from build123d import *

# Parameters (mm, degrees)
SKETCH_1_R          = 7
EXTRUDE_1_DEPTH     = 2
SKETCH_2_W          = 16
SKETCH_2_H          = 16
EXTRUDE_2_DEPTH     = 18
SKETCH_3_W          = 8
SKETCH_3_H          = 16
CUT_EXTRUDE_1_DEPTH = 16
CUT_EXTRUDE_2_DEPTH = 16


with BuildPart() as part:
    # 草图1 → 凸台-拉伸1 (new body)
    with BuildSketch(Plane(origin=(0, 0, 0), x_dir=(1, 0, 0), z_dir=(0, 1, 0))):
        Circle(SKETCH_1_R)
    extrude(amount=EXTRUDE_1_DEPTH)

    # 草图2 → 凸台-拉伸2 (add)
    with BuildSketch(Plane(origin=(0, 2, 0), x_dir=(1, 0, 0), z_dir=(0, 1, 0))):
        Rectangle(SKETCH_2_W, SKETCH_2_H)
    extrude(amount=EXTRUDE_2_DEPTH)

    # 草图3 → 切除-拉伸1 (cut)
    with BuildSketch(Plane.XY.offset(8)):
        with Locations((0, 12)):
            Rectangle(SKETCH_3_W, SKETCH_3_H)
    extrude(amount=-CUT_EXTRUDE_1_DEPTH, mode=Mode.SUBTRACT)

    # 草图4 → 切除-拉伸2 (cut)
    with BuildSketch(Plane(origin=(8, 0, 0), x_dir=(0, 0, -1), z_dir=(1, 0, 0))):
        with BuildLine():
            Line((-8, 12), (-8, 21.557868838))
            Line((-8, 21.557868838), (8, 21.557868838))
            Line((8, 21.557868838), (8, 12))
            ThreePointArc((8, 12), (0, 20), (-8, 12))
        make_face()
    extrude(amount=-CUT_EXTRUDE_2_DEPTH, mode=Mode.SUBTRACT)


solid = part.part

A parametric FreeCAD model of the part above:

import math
import FreeCAD as App
import Part
import Sketcher
from FreeCAD import Vector
Q = App.Units.Quantity

doc = App.newDocument("Part")
body = doc.addObject("PartDesign::Body", "Body")

sketch1 = body.newObject("Sketcher::SketchObject", "Sketch")
sketch1.AttachmentSupport = (doc.getObject("XZ_Plane"), [""])
sketch1.MapMode = "FlatFace"
sketch1.addGeometry(Part.Circle(Vector(0, 0, 0), Vector(0, 0, 1), 7), False)
sketch1.addConstraint([
    Sketcher.Constraint("Coincident", 0, 3, -1, 1),
    Sketcher.Constraint("Diameter", 0, Q("14 mm")),
])
pad1 = body.newObject("PartDesign::Pad", "Pad")
pad1.Profile = sketch1
pad1.Length = 2
pad1.Reversed = True

sketch2 = body.newObject("Sketcher::SketchObject", "Sketch001")
sketch2.AttachmentSupport = (doc.getObject("XZ_Plane"), [""])
sketch2.MapMode = "FlatFace"
sketch2.AttachmentOffset = App.Placement(Vector(0, 0, -2), App.Rotation())
sketch2.addGeometry([
    Part.LineSegment(Vector(-8, -8, 0), Vector(-8, 8, 0)),
    Part.LineSegment(Vector(-8, 8, 0), Vector(8, 8, 0)),
    Part.LineSegment(Vector(8, 8, 0), Vector(8, -8, 0)),
    Part.LineSegment(Vector(8, -8, 0), Vector(-8, -8, 0)),
], False)
sketch2.addConstraint([
    Sketcher.Constraint("Coincident", 0, 2, 1, 1),
    Sketcher.Constraint("Coincident", 1, 2, 2, 1),
    Sketcher.Constraint("Coincident", 2, 2, 3, 1),
    Sketcher.Constraint("Coincident", 3, 2, 0, 1),
    Sketcher.Constraint("Vertical", 0),
    Sketcher.Constraint("Horizontal", 1),
    Sketcher.Constraint("Vertical", 2),
    Sketcher.Constraint("Horizontal", 3),
    Sketcher.Constraint("Symmetric", 0, 2, 2, 2, -1, 1),
    Sketcher.Constraint("Equal", 3, 0),
    Sketcher.Constraint("DistanceX", 1, 1, 1, 2, Q("16 mm")),
])
pad2 = body.newObject("PartDesign::Pad", "Pad001")
pad2.Profile = sketch2
pad2.Length = 18
pad2.Reversed = True

sketch3 = body.newObject("Sketcher::SketchObject", "Sketch002")
sketch3.AttachmentSupport = (doc.getObject("XY_Plane"), [""])
sketch3.MapMode = "FlatFace"
sketch3.AttachmentOffset = App.Placement(Vector(0, 0, 8), App.Rotation())
sketch3.addGeometry([
    Part.LineSegment(Vector(-4, 20, 0), Vector(-4, 4, 0)),
    Part.LineSegment(Vector(-4, 4, 0), Vector(4, 4, 0)),
    Part.LineSegment(Vector(4, 4, 0), Vector(4, 20, 0)),
    Part.LineSegment(Vector(4, 20, 0), Vector(-4, 20, 0)),
], False)
sketch3.addConstraint([
    Sketcher.Constraint("Coincident", 0, 2, 1, 1),
    Sketcher.Constraint("Coincident", 1, 2, 2, 1),
    Sketcher.Constraint("Coincident", 2, 2, 3, 1),
    Sketcher.Constraint("Coincident", 3, 2, 0, 1),
    Sketcher.Constraint("Vertical", 0),
    Sketcher.Constraint("Horizontal", 1),
    Sketcher.Constraint("Vertical", 2),
    Sketcher.Constraint("Horizontal", 3),
    Sketcher.Constraint("DistanceX", 1, 1, 1, 2, Q("8 mm")),
    Sketcher.Constraint("DistanceY", 0, 2, 0, 1, Q("16 mm")),
    Sketcher.Constraint("DistanceX", 0, 2, -1, 1, Q("4 mm")),
    Sketcher.Constraint("DistanceY", -1, 1, 0, 2, Q("4 mm")),
])
pocket1 = body.newObject("PartDesign::Pocket", "Pocket")
pocket1.Profile = sketch3
pocket1.Length = 16

sketch4 = body.newObject("Sketcher::SketchObject", "Sketch003")
sketch4.AttachmentSupport = (doc.getObject("YZ_Plane"), [""])
sketch4.MapMode = "FlatFace"
sketch4.AttachmentOffset = App.Placement(Vector(0, 0, 8), App.Rotation())
sketch4.addGeometry([
    Part.LineSegment(Vector(21.557869, 8, 0), Vector(12, 8, 0)),
    Part.ArcOfCircle(Part.Circle(Vector(12, 0, 0), Vector(0, 0, 1), 8), math.radians(-90), math.radians(90)),
    Part.LineSegment(Vector(12, -8, 0), Vector(21.557869, -8, 0)),
    Part.LineSegment(Vector(21.557869, -8, 0), Vector(21.557869, 8, 0)),
], False)
sketch4.addConstraint([
    Sketcher.Constraint("Tangent", 0, 2, 1, 2),
    Sketcher.Constraint("Tangent", 1, 1, 2, 1),
    Sketcher.Constraint("Coincident", 2, 2, 3, 1),
    Sketcher.Constraint("Coincident", 3, 2, 0, 1),
    Sketcher.Constraint("Horizontal", 0),
    Sketcher.Constraint("Horizontal", 2),
    Sketcher.Constraint("Vertical", 3),
    Sketcher.Constraint("PointOnObject", 1, 3, -1),
    Sketcher.Constraint("Radius", 1, Q("8 mm")),
    Sketcher.Constraint("DistanceX", -1, 1, 1, 3, Q("12 mm")),
    Sketcher.Constraint("DistanceX", 0, 2, 0, 1, Q("9.557869 mm")),
])
pocket2 = body.newObject("PartDesign::Pocket", "Pocket001")
pocket2.Profile = sketch4
pocket2.Length = 16

doc.recompute()
